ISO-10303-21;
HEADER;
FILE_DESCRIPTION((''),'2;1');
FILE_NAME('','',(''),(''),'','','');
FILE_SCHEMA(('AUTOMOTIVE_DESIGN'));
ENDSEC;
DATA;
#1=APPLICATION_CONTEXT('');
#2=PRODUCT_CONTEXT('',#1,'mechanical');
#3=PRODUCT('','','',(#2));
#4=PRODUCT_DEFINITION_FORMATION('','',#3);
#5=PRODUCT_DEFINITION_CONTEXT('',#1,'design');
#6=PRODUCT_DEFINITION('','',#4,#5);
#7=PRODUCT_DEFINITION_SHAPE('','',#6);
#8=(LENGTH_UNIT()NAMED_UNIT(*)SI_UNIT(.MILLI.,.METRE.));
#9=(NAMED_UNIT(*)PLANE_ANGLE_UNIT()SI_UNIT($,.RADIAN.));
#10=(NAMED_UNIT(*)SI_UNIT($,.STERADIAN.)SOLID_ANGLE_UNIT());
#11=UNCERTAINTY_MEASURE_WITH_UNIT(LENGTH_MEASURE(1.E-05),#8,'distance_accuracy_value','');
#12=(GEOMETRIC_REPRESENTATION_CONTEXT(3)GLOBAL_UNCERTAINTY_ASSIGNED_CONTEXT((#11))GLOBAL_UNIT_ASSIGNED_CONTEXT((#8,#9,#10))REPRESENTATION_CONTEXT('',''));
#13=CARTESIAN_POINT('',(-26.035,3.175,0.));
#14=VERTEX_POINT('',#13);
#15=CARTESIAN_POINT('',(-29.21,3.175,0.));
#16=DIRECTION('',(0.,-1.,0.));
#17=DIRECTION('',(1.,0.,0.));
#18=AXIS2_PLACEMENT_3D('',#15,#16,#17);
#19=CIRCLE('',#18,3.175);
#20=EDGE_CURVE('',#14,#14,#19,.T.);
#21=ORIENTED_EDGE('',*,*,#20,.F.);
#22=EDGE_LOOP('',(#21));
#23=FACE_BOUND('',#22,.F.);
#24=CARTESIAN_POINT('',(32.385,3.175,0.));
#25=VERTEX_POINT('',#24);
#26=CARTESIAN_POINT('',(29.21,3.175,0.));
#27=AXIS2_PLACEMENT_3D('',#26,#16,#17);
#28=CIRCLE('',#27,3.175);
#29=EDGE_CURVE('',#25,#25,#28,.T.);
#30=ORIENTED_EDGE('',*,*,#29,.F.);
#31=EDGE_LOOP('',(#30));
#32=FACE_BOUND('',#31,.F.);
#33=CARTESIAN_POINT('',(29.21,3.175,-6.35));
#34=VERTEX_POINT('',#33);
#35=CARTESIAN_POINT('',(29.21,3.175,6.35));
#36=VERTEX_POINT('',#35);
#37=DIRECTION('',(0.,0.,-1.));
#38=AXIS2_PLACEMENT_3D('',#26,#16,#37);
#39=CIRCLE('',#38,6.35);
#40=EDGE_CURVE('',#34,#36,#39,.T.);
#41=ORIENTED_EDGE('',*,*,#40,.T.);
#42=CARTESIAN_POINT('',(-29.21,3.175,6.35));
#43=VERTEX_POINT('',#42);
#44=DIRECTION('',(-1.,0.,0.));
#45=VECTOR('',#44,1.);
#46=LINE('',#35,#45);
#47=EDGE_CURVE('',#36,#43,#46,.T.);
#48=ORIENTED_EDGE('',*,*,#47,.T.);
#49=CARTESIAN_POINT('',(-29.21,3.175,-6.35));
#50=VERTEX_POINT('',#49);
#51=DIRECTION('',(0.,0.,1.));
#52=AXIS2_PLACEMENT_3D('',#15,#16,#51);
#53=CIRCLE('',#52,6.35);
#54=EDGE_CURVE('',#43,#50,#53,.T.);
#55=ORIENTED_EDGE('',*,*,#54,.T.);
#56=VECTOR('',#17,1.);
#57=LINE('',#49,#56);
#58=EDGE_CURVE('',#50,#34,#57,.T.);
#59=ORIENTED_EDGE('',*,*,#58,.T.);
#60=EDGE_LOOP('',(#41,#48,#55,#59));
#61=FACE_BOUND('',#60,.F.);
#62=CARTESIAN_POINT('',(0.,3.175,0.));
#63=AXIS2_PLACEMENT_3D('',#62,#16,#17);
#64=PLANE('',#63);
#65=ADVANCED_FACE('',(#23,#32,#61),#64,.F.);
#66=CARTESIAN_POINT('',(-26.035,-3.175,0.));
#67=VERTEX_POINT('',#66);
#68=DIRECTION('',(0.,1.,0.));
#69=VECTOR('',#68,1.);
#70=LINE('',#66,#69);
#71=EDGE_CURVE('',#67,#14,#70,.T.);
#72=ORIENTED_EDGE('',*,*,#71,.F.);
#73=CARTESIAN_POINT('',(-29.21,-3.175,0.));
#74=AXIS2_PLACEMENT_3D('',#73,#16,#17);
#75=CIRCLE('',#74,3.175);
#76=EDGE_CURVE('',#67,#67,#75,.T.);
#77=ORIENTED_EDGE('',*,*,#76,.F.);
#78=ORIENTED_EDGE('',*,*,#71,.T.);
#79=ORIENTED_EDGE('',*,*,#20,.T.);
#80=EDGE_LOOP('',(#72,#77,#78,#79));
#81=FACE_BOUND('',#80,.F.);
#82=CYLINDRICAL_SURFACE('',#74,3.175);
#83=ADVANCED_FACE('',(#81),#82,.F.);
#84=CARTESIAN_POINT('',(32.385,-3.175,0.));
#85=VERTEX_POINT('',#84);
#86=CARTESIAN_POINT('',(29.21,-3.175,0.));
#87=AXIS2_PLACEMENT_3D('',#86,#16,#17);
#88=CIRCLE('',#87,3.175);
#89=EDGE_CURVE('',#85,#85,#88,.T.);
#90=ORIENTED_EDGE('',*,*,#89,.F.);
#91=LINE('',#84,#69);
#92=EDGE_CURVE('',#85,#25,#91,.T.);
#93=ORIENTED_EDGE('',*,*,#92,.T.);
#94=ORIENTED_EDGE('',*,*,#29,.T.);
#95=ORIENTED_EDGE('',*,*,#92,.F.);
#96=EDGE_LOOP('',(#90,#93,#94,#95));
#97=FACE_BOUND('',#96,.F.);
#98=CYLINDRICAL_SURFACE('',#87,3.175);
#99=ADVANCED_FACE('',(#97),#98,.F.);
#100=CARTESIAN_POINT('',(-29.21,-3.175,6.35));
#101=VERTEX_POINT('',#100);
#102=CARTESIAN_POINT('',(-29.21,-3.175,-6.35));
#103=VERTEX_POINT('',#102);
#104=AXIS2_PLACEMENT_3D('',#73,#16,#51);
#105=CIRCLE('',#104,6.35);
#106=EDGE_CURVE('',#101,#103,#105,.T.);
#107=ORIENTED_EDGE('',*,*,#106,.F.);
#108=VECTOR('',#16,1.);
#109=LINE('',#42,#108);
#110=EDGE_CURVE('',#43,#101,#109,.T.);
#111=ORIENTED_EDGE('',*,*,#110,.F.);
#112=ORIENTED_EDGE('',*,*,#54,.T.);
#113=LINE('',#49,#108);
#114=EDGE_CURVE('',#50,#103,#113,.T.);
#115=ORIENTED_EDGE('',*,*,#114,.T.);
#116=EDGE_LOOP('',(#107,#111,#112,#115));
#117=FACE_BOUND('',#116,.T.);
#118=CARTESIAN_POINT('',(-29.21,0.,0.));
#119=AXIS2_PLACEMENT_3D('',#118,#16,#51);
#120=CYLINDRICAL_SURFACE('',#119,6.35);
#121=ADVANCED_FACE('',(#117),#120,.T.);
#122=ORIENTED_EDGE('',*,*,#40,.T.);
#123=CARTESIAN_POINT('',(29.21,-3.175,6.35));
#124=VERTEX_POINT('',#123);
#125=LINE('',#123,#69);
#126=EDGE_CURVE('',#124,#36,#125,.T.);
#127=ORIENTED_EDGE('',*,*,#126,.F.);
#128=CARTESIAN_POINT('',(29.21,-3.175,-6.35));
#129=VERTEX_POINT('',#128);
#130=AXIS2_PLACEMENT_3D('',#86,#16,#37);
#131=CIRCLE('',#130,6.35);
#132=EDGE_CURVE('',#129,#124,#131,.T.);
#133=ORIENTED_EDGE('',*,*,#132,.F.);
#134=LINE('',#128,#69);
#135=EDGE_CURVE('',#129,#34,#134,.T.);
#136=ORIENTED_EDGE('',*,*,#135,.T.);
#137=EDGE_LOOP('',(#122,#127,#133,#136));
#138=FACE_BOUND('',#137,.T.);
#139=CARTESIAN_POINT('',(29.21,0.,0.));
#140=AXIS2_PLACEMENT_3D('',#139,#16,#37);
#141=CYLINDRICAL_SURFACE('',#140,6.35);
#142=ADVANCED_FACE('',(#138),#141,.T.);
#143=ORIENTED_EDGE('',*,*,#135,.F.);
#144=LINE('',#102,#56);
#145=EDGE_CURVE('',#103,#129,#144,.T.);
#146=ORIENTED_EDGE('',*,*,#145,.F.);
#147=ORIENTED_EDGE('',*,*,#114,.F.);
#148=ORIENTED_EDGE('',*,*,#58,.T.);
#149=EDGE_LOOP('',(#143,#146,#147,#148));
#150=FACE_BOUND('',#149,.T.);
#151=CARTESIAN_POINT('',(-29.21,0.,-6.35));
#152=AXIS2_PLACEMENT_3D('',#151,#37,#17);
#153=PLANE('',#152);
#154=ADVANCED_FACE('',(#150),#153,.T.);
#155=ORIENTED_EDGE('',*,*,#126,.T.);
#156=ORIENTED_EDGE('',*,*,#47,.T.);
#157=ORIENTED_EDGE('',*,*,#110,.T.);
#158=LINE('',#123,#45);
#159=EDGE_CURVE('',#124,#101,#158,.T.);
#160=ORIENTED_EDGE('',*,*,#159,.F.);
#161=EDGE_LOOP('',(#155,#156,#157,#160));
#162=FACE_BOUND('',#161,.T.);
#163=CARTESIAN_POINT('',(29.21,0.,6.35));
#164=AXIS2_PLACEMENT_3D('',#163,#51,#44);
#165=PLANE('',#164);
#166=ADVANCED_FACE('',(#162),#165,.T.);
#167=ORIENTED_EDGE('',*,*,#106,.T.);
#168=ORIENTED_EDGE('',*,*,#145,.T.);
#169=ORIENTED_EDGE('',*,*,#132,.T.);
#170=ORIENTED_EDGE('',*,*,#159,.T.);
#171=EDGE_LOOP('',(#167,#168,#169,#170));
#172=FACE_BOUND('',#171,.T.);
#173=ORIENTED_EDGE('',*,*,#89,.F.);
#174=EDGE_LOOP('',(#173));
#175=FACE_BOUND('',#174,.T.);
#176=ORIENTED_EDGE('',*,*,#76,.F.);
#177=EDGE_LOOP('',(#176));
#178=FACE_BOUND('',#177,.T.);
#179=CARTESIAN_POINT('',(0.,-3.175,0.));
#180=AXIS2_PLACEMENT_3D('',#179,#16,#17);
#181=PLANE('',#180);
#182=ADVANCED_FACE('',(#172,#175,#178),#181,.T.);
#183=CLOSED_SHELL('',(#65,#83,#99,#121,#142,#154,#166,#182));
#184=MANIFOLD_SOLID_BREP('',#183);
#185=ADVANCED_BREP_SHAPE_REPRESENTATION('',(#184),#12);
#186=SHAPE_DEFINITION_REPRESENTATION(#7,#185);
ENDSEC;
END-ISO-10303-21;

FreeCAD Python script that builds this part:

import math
import FreeCAD as App
import Part
import Sketcher

V = App.Vector
Q = App.Units.Quantity

doc = App.newDocument("Part")
body = doc.addObject("PartDesign::Body", "Body")

# Sketch on XZ plane
sketch1 = doc.addObject("Sketcher::SketchObject", "Sketch")
body.addObject(sketch1)
sketch1.AttachmentSupport = (doc.XZ_Plane, [""])
sketch1.MapMode = "FlatFace"
sketch1.addGeometry([
    Part.LineSegment(V(29, 6, 0), V(-29, 6, 0)),
    Part.ArcOfCircle(Part.Circle(V(-29, 0, 0), V(0, 0, 1), 6), math.radians(90), math.radians(270)),
    Part.LineSegment(V(-29, -6, 0), V(29, -6, 0)),
    Part.ArcOfCircle(Part.Circle(V(29, 0, 0), V(0, 0, 1), 6), math.radians(-90), math.radians(90)),
], False)
sketch1.addConstraint([
    Sketcher.Constraint("Tangent", 0, 2, 1, 1),
    Sketcher.Constraint("Tangent", 1, 2, 2, 1),
    Sketcher.Constraint("Tangent", 2, 2, 3, 1),
    Sketcher.Constraint("Tangent", 3, 2, 0, 1),
    Sketcher.Constraint("Horizontal", 0),
    Sketcher.Constraint("Horizontal", 2),
    Sketcher.Constraint("Symmetric", 1, 3, 3, 3, -1, 1),
    Sketcher.Constraint("Radius", 1, Q("0.25 in")),
    Sketcher.Constraint("DistanceX", 0, 2, 0, 1, Q("2.3 in")),
])
pad1 = doc.addObject("PartDesign::Pad", "Pad")
body.addObject(pad1)
pad1.Profile = sketch1
pad1.Length = Q("0.25 in")
pad1.Midplane = True

# Sketch on XZ plane
sketch2 = doc.addObject("Sketcher::SketchObject", "Sketch001")
body.addObject(sketch2)
sketch2.AttachmentSupport = (doc.XZ_Plane, [""])
sketch2.MapMode = "FlatFace"
sketch2.AttachmentOffset = App.Placement(V(0, 0, 0.125 * 25.4), App.Rotation())
sketch2.addGeometry([
    Part.Circle(V(29.2, 0, 0), V(0, 0, 1), 3.2),
    Part.Circle(V(-29.2, 0, 0), V(0, 0, 1), 3.2),
], False)
sketch2.addConstraint([
    Sketcher.Constraint("Equal", 0, 1),
    Sketcher.Constraint("Symmetric", 0, 3, 1, 3, -1, 1),
    Sketcher.Constraint("PointOnObject", 0, 3, -1),
    Sketcher.Constraint("Diameter", 0, Q("0.25 in")),
    Sketcher.Constraint("DistanceX", 1, 3, 0, 3, Q("2.3 in")),
])
pocket1 = doc.addObject("PartDesign::Pocket", "Pocket")
body.addObject(pocket1)
pocket1.Profile = sketch2
pocket1.Type = "ThroughAll"

doc.recompute()
